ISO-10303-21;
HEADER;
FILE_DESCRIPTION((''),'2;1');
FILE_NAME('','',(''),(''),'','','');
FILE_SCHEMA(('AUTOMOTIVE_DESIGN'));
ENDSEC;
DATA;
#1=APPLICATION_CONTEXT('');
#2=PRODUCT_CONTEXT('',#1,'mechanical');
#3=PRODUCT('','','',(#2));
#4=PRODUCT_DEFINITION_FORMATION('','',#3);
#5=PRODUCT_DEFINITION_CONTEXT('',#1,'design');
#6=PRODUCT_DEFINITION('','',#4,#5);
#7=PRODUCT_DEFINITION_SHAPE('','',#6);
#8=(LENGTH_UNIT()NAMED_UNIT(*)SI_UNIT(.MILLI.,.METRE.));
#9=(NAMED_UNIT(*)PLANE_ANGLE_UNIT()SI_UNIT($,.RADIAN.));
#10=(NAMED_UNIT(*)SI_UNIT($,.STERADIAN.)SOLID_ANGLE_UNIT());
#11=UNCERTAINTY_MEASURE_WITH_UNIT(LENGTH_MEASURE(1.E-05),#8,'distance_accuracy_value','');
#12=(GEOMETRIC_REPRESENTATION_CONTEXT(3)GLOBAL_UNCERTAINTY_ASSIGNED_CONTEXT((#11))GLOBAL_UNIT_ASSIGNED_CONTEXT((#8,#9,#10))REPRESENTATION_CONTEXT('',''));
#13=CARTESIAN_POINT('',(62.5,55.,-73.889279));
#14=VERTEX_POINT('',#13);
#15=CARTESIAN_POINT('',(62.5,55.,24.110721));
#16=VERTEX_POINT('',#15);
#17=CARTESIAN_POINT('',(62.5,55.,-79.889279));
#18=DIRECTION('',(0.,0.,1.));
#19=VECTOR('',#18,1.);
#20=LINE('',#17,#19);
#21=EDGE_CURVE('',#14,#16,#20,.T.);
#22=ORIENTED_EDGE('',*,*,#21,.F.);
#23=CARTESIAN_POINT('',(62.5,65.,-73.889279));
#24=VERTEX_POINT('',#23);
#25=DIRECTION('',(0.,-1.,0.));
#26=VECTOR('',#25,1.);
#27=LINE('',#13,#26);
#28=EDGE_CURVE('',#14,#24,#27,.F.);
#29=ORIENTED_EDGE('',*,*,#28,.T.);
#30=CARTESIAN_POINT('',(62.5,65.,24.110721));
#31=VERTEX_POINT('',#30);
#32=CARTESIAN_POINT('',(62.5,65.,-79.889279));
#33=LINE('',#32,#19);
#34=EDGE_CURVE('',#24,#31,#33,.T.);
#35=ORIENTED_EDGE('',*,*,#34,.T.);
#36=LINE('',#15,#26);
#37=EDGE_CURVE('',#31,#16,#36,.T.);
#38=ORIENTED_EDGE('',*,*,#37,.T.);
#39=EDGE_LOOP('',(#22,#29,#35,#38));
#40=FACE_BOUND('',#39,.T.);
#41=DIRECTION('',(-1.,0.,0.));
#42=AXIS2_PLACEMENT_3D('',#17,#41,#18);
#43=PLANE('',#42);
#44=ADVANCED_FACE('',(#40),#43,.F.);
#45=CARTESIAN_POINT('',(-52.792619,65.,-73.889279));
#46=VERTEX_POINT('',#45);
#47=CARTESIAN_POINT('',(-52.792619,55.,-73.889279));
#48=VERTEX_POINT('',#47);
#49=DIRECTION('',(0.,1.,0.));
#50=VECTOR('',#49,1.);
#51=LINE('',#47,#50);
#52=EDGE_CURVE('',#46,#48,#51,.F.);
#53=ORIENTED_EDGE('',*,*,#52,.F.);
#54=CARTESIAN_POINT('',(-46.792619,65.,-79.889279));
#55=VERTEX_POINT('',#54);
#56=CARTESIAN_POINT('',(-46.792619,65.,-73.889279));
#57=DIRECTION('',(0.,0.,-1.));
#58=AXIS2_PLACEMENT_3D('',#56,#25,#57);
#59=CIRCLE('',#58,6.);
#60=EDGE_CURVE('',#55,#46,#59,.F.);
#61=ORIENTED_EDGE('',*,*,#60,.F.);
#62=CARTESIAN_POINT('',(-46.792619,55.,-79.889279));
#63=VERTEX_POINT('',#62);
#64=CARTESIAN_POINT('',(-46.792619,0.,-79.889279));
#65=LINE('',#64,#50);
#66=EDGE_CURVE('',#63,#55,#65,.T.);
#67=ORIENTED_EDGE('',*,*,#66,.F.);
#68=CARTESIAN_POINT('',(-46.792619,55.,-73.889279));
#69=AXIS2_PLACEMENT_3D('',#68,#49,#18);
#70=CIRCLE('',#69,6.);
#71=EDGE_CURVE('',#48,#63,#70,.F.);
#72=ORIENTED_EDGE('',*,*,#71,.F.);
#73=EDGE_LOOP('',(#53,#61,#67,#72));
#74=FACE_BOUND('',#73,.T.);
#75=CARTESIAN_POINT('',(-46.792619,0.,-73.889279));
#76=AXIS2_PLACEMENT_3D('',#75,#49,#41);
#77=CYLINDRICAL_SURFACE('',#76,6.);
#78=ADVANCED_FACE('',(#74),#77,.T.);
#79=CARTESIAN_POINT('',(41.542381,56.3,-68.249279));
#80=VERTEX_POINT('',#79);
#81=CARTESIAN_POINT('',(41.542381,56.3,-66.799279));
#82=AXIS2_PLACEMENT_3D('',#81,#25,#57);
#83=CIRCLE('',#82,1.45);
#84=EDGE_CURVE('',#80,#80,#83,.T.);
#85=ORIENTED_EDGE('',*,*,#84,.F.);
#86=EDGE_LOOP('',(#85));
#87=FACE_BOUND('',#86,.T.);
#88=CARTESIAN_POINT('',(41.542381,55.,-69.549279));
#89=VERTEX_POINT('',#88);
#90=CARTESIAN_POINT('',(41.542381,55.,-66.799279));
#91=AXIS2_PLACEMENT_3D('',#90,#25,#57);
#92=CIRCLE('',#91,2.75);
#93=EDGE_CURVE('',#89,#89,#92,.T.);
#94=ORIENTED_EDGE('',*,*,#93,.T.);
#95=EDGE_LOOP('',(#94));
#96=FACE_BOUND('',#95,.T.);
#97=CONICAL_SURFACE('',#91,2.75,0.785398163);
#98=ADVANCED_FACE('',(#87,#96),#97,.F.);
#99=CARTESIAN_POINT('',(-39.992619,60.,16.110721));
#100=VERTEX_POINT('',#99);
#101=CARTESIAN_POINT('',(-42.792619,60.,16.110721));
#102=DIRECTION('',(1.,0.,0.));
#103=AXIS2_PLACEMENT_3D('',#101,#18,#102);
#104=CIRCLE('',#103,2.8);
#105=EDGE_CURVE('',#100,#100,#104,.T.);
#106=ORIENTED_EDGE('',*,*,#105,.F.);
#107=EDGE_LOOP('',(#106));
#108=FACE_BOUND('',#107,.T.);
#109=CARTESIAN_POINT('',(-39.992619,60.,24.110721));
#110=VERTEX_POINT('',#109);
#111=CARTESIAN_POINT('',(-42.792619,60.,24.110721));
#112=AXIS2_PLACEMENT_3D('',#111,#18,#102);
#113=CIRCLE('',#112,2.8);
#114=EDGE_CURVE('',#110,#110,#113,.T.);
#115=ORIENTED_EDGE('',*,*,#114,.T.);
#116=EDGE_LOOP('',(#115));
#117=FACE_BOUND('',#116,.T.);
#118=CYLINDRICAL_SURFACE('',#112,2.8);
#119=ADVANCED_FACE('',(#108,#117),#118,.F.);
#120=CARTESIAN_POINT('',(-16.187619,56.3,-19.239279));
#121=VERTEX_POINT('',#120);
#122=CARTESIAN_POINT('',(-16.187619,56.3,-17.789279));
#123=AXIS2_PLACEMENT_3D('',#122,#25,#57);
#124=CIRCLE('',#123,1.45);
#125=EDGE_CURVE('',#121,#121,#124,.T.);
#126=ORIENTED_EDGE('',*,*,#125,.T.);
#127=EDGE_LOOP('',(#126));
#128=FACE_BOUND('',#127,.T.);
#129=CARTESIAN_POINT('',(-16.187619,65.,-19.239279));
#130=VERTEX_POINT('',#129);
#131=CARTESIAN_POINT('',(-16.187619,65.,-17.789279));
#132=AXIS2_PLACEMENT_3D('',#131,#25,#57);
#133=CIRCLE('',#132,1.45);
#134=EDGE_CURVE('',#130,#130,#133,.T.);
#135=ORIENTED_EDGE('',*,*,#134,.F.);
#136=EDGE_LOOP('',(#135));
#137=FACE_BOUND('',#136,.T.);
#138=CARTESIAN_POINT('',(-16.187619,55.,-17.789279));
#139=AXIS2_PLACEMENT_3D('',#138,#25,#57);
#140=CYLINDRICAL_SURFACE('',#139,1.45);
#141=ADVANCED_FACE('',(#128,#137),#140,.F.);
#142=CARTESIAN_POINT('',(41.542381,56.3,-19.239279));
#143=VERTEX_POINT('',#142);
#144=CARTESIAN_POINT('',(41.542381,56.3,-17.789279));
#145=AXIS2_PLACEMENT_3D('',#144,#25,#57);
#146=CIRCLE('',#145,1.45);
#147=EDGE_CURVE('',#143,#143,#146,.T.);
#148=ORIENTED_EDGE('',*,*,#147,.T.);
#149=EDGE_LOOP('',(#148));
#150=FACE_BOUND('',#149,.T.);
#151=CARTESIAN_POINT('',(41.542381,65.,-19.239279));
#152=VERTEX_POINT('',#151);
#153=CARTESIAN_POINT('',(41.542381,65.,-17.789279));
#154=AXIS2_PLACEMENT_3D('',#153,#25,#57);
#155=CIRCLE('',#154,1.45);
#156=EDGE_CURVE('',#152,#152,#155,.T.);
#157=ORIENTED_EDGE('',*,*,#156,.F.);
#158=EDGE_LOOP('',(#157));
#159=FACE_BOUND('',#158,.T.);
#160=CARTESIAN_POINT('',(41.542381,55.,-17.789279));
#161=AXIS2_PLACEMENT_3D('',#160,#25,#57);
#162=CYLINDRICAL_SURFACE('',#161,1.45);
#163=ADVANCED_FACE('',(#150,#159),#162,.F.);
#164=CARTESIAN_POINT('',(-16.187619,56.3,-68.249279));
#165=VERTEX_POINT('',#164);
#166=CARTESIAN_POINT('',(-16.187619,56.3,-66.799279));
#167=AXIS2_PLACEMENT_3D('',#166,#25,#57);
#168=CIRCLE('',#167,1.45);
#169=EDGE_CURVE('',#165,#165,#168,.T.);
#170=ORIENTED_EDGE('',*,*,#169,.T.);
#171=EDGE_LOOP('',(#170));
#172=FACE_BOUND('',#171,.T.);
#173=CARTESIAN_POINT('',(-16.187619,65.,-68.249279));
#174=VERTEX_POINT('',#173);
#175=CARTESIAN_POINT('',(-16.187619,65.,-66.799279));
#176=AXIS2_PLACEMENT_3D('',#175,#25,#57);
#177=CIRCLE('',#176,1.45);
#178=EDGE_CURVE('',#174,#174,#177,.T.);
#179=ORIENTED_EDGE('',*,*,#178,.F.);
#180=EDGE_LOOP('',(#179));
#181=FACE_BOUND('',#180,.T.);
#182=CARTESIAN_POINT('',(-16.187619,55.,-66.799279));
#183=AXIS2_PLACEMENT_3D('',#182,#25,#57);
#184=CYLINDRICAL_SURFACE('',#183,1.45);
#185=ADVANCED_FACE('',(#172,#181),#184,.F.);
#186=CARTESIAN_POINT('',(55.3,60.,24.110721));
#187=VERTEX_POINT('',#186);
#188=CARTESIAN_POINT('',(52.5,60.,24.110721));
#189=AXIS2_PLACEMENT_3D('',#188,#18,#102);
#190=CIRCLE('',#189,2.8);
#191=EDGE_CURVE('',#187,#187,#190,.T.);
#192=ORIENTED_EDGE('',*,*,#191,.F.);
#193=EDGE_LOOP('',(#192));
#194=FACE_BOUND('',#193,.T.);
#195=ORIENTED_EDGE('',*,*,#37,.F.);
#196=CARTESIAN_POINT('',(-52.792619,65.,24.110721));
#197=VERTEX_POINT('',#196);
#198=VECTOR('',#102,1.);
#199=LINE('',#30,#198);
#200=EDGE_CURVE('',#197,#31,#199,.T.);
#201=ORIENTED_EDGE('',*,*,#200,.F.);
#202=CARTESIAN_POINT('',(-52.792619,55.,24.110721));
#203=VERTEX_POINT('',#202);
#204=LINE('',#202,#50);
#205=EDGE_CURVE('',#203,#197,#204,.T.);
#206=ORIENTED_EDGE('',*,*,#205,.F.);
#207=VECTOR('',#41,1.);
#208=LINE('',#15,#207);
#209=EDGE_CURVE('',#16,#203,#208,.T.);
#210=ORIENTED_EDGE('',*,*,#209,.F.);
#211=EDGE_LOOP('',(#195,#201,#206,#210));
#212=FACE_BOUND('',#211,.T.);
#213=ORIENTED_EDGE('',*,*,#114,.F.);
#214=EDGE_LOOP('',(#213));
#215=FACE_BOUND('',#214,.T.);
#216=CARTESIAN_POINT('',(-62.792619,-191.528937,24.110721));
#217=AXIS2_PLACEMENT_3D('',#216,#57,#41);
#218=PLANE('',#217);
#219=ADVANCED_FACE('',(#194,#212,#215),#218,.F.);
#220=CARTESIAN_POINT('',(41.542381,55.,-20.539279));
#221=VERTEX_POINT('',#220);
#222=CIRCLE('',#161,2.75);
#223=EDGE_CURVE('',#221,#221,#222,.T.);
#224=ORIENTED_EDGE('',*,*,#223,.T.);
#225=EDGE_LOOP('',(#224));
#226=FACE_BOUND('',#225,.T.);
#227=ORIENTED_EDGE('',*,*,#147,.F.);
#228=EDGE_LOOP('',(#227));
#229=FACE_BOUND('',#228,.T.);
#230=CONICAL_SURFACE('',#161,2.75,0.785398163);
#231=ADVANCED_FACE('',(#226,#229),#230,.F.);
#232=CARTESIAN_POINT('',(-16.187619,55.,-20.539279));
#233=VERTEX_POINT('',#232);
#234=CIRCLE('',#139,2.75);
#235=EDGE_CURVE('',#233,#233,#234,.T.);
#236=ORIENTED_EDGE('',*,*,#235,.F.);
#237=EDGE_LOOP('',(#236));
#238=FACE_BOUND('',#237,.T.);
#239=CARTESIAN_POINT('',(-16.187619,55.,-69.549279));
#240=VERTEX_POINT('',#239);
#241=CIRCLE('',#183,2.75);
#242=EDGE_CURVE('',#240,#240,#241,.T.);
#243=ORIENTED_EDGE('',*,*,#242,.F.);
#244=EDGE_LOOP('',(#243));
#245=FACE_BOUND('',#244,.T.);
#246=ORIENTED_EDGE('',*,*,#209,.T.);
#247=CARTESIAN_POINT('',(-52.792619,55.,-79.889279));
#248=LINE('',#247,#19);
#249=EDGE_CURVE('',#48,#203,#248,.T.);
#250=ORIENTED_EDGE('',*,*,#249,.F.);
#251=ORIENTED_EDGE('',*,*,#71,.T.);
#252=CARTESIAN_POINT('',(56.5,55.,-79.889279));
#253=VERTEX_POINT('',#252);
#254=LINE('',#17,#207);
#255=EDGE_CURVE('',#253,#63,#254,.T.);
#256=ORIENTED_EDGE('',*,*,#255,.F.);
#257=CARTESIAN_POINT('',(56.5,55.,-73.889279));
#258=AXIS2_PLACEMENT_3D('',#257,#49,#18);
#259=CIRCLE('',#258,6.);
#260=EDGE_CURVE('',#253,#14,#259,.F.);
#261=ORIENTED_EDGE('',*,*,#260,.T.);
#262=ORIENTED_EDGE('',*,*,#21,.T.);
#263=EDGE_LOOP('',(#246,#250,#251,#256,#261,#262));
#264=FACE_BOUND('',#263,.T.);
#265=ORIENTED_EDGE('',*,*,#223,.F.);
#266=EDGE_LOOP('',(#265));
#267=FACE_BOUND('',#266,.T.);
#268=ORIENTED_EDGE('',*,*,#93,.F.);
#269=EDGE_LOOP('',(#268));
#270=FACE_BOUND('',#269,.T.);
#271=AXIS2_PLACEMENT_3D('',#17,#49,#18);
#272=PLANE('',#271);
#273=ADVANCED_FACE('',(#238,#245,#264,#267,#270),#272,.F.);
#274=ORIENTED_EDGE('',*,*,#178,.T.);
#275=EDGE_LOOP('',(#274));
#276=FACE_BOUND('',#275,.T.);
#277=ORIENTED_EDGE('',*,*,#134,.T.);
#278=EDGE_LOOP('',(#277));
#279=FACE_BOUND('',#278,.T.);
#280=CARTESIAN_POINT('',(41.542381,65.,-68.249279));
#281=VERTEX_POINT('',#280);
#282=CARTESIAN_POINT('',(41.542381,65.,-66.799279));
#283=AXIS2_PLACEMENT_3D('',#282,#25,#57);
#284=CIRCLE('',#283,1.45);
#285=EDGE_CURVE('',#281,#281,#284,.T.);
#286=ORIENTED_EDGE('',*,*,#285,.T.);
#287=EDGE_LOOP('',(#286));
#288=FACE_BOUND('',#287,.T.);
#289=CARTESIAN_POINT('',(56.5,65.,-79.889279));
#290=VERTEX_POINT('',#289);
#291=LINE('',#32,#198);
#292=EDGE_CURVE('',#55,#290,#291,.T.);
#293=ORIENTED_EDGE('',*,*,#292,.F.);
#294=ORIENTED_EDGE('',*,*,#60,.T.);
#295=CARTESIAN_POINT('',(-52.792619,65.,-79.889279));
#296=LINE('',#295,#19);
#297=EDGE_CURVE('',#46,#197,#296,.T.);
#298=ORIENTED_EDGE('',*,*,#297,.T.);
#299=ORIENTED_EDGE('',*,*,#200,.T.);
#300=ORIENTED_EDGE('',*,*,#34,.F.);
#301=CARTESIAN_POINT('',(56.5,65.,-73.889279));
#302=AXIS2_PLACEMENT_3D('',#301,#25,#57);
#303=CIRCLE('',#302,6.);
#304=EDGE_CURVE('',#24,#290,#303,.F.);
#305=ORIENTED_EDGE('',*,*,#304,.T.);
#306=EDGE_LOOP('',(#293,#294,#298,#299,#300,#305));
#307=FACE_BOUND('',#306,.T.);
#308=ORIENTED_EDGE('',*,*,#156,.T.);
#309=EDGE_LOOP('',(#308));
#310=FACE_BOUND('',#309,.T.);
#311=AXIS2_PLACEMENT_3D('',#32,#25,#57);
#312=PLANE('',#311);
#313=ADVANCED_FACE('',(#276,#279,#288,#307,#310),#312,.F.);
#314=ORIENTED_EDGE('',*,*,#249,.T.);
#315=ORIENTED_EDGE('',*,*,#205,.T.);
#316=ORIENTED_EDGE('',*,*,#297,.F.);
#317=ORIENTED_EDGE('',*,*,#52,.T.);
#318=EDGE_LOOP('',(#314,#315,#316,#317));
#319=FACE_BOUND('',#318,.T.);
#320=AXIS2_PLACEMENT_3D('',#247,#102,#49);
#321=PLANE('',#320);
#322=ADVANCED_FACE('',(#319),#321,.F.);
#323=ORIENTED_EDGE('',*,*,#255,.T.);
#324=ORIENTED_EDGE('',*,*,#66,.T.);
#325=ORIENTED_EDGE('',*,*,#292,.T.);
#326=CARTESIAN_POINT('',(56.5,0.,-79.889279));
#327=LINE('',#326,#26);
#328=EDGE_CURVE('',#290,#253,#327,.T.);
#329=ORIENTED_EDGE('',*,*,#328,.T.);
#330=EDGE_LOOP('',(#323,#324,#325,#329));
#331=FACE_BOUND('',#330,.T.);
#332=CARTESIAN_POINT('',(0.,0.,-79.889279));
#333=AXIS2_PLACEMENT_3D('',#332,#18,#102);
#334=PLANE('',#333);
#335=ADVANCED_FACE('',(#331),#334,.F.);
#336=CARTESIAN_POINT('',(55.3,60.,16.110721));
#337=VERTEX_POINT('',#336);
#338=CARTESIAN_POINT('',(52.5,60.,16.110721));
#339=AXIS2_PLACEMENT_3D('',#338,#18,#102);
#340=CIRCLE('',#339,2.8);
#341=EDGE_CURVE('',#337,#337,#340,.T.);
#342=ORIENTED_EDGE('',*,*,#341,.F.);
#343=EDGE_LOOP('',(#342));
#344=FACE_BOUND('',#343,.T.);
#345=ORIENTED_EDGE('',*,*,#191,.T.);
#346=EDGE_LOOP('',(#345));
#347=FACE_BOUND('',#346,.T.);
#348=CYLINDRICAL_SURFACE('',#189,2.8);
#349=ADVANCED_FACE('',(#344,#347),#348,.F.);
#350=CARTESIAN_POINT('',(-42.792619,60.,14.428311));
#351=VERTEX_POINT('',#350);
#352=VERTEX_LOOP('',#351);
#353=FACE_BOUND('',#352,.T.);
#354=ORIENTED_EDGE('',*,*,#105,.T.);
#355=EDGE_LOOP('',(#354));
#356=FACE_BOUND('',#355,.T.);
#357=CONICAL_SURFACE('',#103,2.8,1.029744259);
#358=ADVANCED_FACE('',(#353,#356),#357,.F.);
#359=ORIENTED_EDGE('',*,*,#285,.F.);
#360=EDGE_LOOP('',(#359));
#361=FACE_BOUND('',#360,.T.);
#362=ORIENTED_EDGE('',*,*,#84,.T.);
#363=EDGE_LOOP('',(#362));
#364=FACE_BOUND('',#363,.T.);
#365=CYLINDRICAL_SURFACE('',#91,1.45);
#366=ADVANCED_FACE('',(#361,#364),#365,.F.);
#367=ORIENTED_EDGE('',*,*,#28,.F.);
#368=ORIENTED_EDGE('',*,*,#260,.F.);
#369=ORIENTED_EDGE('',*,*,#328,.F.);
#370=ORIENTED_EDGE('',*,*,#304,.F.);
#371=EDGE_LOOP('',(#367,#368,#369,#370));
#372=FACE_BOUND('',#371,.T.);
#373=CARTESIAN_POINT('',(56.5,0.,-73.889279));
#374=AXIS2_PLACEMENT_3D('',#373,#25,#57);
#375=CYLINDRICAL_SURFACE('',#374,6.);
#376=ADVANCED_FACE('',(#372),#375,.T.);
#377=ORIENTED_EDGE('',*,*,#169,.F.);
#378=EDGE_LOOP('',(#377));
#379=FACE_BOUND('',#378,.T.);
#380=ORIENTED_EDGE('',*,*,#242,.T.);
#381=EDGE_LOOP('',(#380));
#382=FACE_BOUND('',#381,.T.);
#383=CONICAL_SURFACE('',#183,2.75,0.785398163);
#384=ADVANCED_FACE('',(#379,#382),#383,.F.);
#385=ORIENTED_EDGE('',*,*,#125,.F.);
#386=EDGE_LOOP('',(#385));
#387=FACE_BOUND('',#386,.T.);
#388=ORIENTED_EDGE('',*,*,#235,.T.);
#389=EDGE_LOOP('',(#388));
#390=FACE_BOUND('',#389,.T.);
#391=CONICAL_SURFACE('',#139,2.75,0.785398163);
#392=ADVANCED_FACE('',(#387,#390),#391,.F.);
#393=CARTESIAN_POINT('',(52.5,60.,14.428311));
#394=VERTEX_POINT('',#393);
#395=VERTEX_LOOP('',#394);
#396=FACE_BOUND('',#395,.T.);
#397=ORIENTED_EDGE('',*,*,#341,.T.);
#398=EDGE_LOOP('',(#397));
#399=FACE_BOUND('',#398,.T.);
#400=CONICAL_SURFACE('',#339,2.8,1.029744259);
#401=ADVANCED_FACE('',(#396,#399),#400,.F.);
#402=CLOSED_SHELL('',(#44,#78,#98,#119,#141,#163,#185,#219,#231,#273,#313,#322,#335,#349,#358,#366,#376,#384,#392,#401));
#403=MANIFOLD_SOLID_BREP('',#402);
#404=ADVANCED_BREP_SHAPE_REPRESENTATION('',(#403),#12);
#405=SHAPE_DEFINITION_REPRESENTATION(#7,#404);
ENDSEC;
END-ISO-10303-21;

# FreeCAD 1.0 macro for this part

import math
import FreeCAD as App
import Part
import Sketcher


def edges_at(feature, points):
    """Names of the edges that pass closest to the given points."""
    edges = feature.Shape.Edges
    near = lambda p: min(range(len(edges)), key=lambda i: edges[i].distToShape(Part.Vertex(*p))[0])
    return sorted({f"Edge{near(p) + 1}" for p in points})

doc = App.newDocument("Part")
body = doc.addObject("PartDesign::Body", "Body")

sketch1 = body.newObject("Sketcher::SketchObject", "Sketch")
sketch1.AttachmentSupport = (doc.getObject("XZ_Plane"), [""])
sketch1.MapMode = "FlatFace"
sketch1.addGeometry(Part.LineSegment(App.Vector(-53, -110, 0), App.Vector(-53, 24, 0)), False)
sketch1.addGeometry(Part.LineSegment(App.Vector(-53, 24, 0), App.Vector(63, 24, 0)), False)
sketch1.addGeometry(Part.LineSegment(App.Vector(63, 24, 0), App.Vector(63, -110, 0)), False)
sketch1.addGeometry(Part.LineSegment(App.Vector(63, -110, 0), App.Vector(-53, -110, 0)), False)
sketch1.addConstraint(Sketcher.Constraint("Coincident", 0, 2, 1, 1))
sketch1.addConstraint(Sketcher.Constraint("Coincident", 1, 2, 2, 1))
sketch1.addConstraint(Sketcher.Constraint("Coincident", 2, 2, 3, 1))
sketch1.addConstraint(Sketcher.Constraint("Coincident", 3, 2, 0, 1))
sketch1.addConstraint(Sketcher.Constraint("Vertical", 0))
sketch1.addConstraint(Sketcher.Constraint("Horizontal", 1))
sketch1.addConstraint(Sketcher.Constraint("Vertical", 2))
sketch1.addConstraint(Sketcher.Constraint("Horizontal", 3))
sketch1.addConstraint(Sketcher.Constraint("DistanceY", 0, 1, 0, 2, 134.0))
sketch1.addConstraint(Sketcher.Constraint("DistanceX", -1, 1, 1, 2, 62.5))
sketch1.addConstraint(Sketcher.Constraint("DistanceX", 1, 1, 1, 2, 115.292619))
sketch1.addConstraint(Sketcher.Constraint("DistanceY", -1, 1, 0, 2, 24.110721))
pad1 = body.newObject("PartDesign::Pad", "Pad")
pad1.Profile = sketch1
pad1.Length = 8
pad1.Reversed = True
doc.recompute()

fillet = body.newObject("PartDesign::Fillet", "Fillet")
fillet.Base = (pad1, edges_at(pad1, [(-52.793, 4, -109.889), (62.5, 4, -109.889)]))
fillet.Radius = 6

sketch2 = body.newObject("Sketcher::SketchObject", "Sketch001")
sketch2.AttachmentSupport = (doc.getObject("YZ_Plane"), [""])
sketch2.MapMode = "FlatFace"
sketch2.AttachmentOffset = App.Placement(App.Vector(0, 0, -52.792619), App.Rotation())
sketch2.addGeometry(Part.LineSegment(App.Vector(63, 24, 0), App.Vector(-36, 24, 0)), False)
sketch2.addGeometry(Part.LineSegment(App.Vector(-36, 24, 0), App.Vector(-36, 32, 0)), False)
sketch2.addGeometry(Part.LineSegment(App.Vector(-36, 32, 0), App.Vector(63, 32, 0)), False)
sketch2.addGeometry(Part.LineSegment(App.Vector(63, 32, 0), App.Vector(63, 24, 0)), False)
sketch2.addConstraint(Sketcher.Constraint("Coincident", 0, 2, 1, 1))
sketch2.addConstraint(Sketcher.Constraint("Coincident", 1, 2, 2, 1))
sketch2.addConstraint(Sketcher.Constraint("Coincident", 2, 2, 3, 1))
sketch2.addConstraint(Sketcher.Constraint("Coincident", 3, 2, 0, 1))
sketch2.addConstraint(Sketcher.Constraint("Horizontal", 0))
sketch2.addConstraint(Sketcher.Constraint("Vertical", 1))
sketch2.addConstraint(Sketcher.Constraint("Horizontal", 2))
sketch2.addConstraint(Sketcher.Constraint("Vertical", 3))
sketch2.addConstraint(Sketcher.Constraint("DistanceX", 0, 2, 0, 1, 99.0))
sketch2.addConstraint(Sketcher.Constraint("DistanceY", 1, 1, 1, 2, 8.0))
sketch2.addConstraint(Sketcher.Constraint("DistanceX", 0, 2, -1, 1, 36.0))
sketch2.addConstraint(Sketcher.Constraint("DistanceY", -1, 1, 0, 2, 24.110721))
pad2 = body.newObject("PartDesign::Pad", "Pad001")
pad2.Profile = sketch2
pad2.Length = 115.292619

sketch3 = body.newObject("Sketcher::SketchObject", "Sketch002")
sketch3.AttachmentSupport = (doc.getObject("XY_Plane"), [""])
sketch3.MapMode = "FlatFace"
sketch3.AttachmentOffset = App.Placement(App.Vector(0, 0, 32.110721), App.Rotation())
sketch3.addGeometry(Part.LineSegment(App.Vector(-63, 73, 0), App.Vector(-63, -56, 0)), False)
sketch3.addGeometry(Part.LineSegment(App.Vector(-63, -56, 0), App.Vector(72, -56, 0)), False)
sketch3.addGeometry(Part.LineSegment(App.Vector(72, -56, 0), App.Vector(72, 73, 0)), False)
sketch3.addGeometry(Part.LineSegment(App.Vector(72, 73, 0), App.Vector(-63, 73, 0)), False)
sketch3.addGeometry(Part.LineSegment(App.Vector(63, -36, 0), App.Vector(-53, -36, 0)), False)
sketch3.addGeometry(Part.LineSegment(App.Vector(-53, -36, 0), App.Vector(-53, 63, 0)), False)
sketch3.addGeometry(Part.LineSegment(App.Vector(-53, 63, 0), App.Vector(63, 63, 0)), False)
sketch3.addGeometry(Part.LineSegment(App.Vector(63, 63, 0), App.Vector(63, -36, 0)), False)
sketch3.addConstraint(Sketcher.Constraint("Coincident", 0, 2, 1, 1))
sketch3.addConstraint(Sketcher.Constraint("Coincident", 1, 2, 2, 1))
sketch3.addConstraint(Sketcher.Constraint("Coincident", 2, 2, 3, 1))
sketch3.addConstraint(Sketcher.Constraint("Coincident", 3, 2, 0, 1))
sketch3.addConstraint(Sketcher.Constraint("Coincident", 4, 2, 5, 1))
sketch3.addConstraint(Sketcher.Constraint("Coincident", 5, 2, 6, 1))
sketch3.addConstraint(Sketcher.Constraint("Coincident", 6, 2, 7, 1))
sketch3.addConstraint(Sketcher.Constraint("Coincident", 7, 2, 4, 1))
sketch3.addConstraint(Sketcher.Constraint("Vertical", 0))
sketch3.addConstraint(Sketcher.Constraint("Horizontal", 1))
sketch3.addConstraint(Sketcher.Constraint("Vertical", 2))
sketch3.addConstraint(Sketcher.Constraint("Horizontal", 3))
sketch3.addConstraint(Sketcher.Constraint("Horizontal", 4))
sketch3.addConstraint(Sketcher.Constraint("Vertical", 5))
sketch3.addConstraint(Sketcher.Constraint("Horizontal", 6))
sketch3.addConstraint(Sketcher.Constraint("Vertical", 7))
sketch3.addConstraint(Sketcher.Constraint("DistanceY", 0, 2, 0, 1, 129.0))
sketch3.addConstraint(Sketcher.Constraint("DistanceY", 5, 1, 5, 2, 99.0))
sketch3.addConstraint(Sketcher.Constraint("DistanceY", 0, 2, -1, 1, 56.0))
sketch3.addConstraint(Sketcher.Constraint("DistanceY", 4, 2, -1, 1, 36.0))
sketch3.addConstraint(Sketcher.Constraint("DistanceX", 0, 2, 4, 2, 10.0))
sketch3.addConstraint(Sketcher.Constraint("DistanceX", 6, 2, 2, 2, 10.0))
sketch3.addConstraint(Sketcher.Constraint("DistanceX", -1, 1, 1, 2, 72.5))
sketch3.addConstraint(Sketcher.Constraint("DistanceX", 1, 1, 1, 2, 135.292619))
pad3 = body.newObject("PartDesign::Pad", "Pad002")
pad3.Profile = sketch3
pad3.Length = 8
pad3.Reversed = True
doc.recompute()

fillet2 = body.newObject("PartDesign::Fillet", "Fillet001")
fillet2.Base = (pad3, edges_at(pad3, [
    (72.5, 73, 28.111),
    (72.5, -56, 28.111),
    (-62.793, -56, 28.111),
    (-62.793, 73, 28.111),
]))
fillet2.Radius = 5

sketch4 = body.newObject("Sketcher::SketchObject", "Sketch003")
sketch4.AttachmentSupport = (doc.getObject("XY_Plane"), [""])
sketch4.MapMode = "FlatFace"
sketch4.AttachmentOffset = App.Placement(App.Vector(0, 0, 24.110721), App.Rotation())
sketch4.addGeometry(Part.LineSegment(App.Vector(-62.8, -51, 0), App.Vector(-62.8, 68, 0)), False)
sketch4.addGeometry(Part.ArcOfCircle(Part.Circle(App.Vector(-57.8, 68, 0), App.Vector(0, 0, 1), 5), math.radians(90), math.radians(180)), False)
sketch4.addGeometry(Part.LineSegment(App.Vector(-57.8, 73, 0), App.Vector(67.5, 73, 0)), False)
sketch4.addGeometry(Part.ArcOfCircle(Part.Circle(App.Vector(67.5, 68, 0), App.Vector(0, 0, 1), 5), math.radians(0), math.radians(90)), False)
sketch4.addGeometry(Part.LineSegment(App.Vector(72.5, 68, 0), App.Vector(72.5, -51, 0)), False)
sketch4.addGeometry(Part.ArcOfCircle(Part.Circle(App.Vector(67.5, -51, 0), App.Vector(0, 0, 1), 5), math.radians(-90), math.radians(0)), False)
sketch4.addGeometry(Part.LineSegment(App.Vector(67.5, -56, 0), App.Vector(-57.8, -56, 0)), False)
sketch4.addGeometry(Part.ArcOfCircle(Part.Circle(App.Vector(-57.8, -51, 0), App.Vector(0, 0, 1), 5), math.radians(180), math.radians(270)), False)
sketch4.addGeometry(Part.LineSegment(App.Vector(67.5, 69.8, 0), App.Vector(-57.8, 69.8, 0)), False)
sketch4.addGeometry(Part.ArcOfCircle(Part.Circle(App.Vector(-57.8, 68, 0), App.Vector(0, 0, 1), 1.8), math.radians(90), math.radians(180)), False)
sketch4.addGeometry(Part.LineSegment(App.Vector(-59.5, 68, 0), App.Vector(-59.5, -51, 0)), False)
sketch4.addGeometry(Part.ArcOfCircle(Part.Circle(App.Vector(-57.8, -51, 0), App.Vector(0, 0, 1), 1.8), math.radians(180), math.radians(270)), False)
sketch4.addGeometry(Part.LineSegment(App.Vector(-57.8, -52.8, 0), App.Vector(67.5, -52.8, 0)), False)
sketch4.addGeometry(Part.ArcOfCircle(Part.Circle(App.Vector(67.5, -51, 0), App.Vector(0, 0, 1), 1.8), math.radians(-90), math.radians(0)), False)
sketch4.addGeometry(Part.LineSegment(App.Vector(69.2, -51, 0), App.Vector(69.2, 68, 0)), False)
sketch4.addGeometry(Part.ArcOfCircle(Part.Circle(App.Vector(67.5, 68, 0), App.Vector(0, 0, 1), 1.8), math.radians(0), math.radians(90)), False)
sketch4.addConstraint(Sketcher.Constraint("Tangent", 0, 2, 1, 2))
sketch4.addConstraint(Sketcher.Constraint("Tangent", 1, 1, 2, 1))
sketch4.addConstraint(Sketcher.Constraint("Tangent", 2, 2, 3, 2))
sketch4.addConstraint(Sketcher.Constraint("Tangent", 3, 1, 4, 1))
sketch4.addConstraint(Sketcher.Constraint("Tangent", 4, 2, 5, 2))
sketch4.addConstraint(Sketcher.Constraint("Tangent", 5, 1, 6, 1))
sketch4.addConstraint(Sketcher.Constraint("Tangent", 6, 2, 7, 2))
sketch4.addConstraint(Sketcher.Constraint("Tangent", 7, 1, 0, 1))
sketch4.addConstraint(Sketcher.Constraint("Tangent", 8, 2, 9, 1))
sketch4.addConstraint(Sketcher.Constraint("Tangent", 9, 2, 10, 1))
sketch4.addConstraint(Sketcher.Constraint("Tangent", 10, 2, 11, 1))
sketch4.addConstraint(Sketcher.Constraint("Tangent", 11, 2, 12, 1))
sketch4.addConstraint(Sketcher.Constraint("Tangent", 12, 2, 13, 1))
sketch4.addConstraint(Sketcher.Constraint("Tangent", 13, 2, 14, 1))
sketch4.addConstraint(Sketcher.Constraint("Tangent", 14, 2, 15, 1))
sketch4.addConstraint(Sketcher.Constraint("Tangent", 15, 2, 8, 1))
sketch4.addConstraint(Sketcher.Constraint("Vertical", 0))
sketch4.addConstraint(Sketcher.Constraint("Horizontal", 2))
sketch4.addConstraint(Sketcher.Constraint("Vertical", 4))
sketch4.addConstraint(Sketcher.Constraint("Horizontal", 6))
sketch4.addConstraint(Sketcher.Constraint("Horizontal", 8))
sketch4.addConstraint(Sketcher.Constraint("Vertical", 10))
sketch4.addConstraint(Sketcher.Constraint("Horizontal", 12))
sketch4.addConstraint(Sketcher.Constraint("Vertical", 14))
sketch4.addConstraint(Sketcher.Constraint("Coincident", 9, 3, 1, 3))
sketch4.addConstraint(Sketcher.Constraint("Coincident", 11, 3, 7, 3))
sketch4.addConstraint(Sketcher.Constraint("Coincident", 13, 3, 5, 3))
sketch4.addConstraint(Sketcher.Constraint("Equal", 1, 3))
sketch4.addConstraint(Sketcher.Constraint("Equal", 3, 5))
sketch4.addConstraint(Sketcher.Constraint("Equal", 5, 7))
sketch4.addConstraint(Sketcher.Constraint("Equal", 13, 15))
sketch4.addConstraint(Sketcher.Constraint("Radius", 1, 5.0))
sketch4.addConstraint(Sketcher.Constraint("DistanceY", 0, 1, 0, 2, 119.0))
sketch4.addConstraint(Sketcher.Constraint("Radius", 9, 1.75))
sketch4.addConstraint(Sketcher.Constraint("DistanceY", -1, 1, 1, 3, 68.0))
sketch4.addConstraint(Sketcher.Constraint("DistanceX", -1, 1, 3, 3, 67.5))
sketch4.addConstraint(Sketcher.Constraint("DistanceX", 2, 1, 2, 2, 125.292619))
pocket1 = body.newObject("PartDesign::Pocket", "Pocket")
pocket1.Profile = sketch4
pocket1.Length = 4
pocket1.Reversed = True

sketch5 = body.newObject("Sketcher::SketchObject", "Sketch004")
sketch5.AttachmentSupport = (doc.getObject("XY_Plane"), [""])
sketch5.MapMode = "FlatFace"
sketch5.AttachmentOffset = App.Placement(App.Vector(0, 0, 24.110721), App.Rotation())
sketch5.addGeometry(Part.LineSegment(App.Vector(63, 65, 0), App.Vector(63, 55, 0)), False)
sketch5.addGeometry(Part.LineSegment(App.Vector(63, 55, 0), App.Vector(-53, 55, 0)), False)
sketch5.addGeometry(Part.LineSegment(App.Vector(-53, 55, 0), App.Vector(-53, 65, 0)), False)
sketch5.addGeometry(Part.LineSegment(App.Vector(-53, 65, 0), App.Vector(63, 65, 0)), False)
sketch5.addConstraint(Sketcher.Constraint("Coincident", 0, 2, 1, 1))
sketch5.addConstraint(Sketcher.Constraint("Coincident", 1, 2, 2, 1))
sketch5.addConstraint(Sketcher.Constraint("Coincident", 2, 2, 3, 1))
sketch5.addConstraint(Sketcher.Constraint("Coincident", 3, 2, 0, 1))
sketch5.addConstraint(Sketcher.Constraint("Vertical", 0))
sketch5.addConstraint(Sketcher.Constraint("Horizontal", 1))
sketch5.addConstraint(Sketcher.Constraint("Vertical", 2))
sketch5.addConstraint(Sketcher.Constraint("Horizontal", 3))
sketch5.addConstraint(Sketcher.Constraint("DistanceY", 0, 2, 0, 1, 10.0))
sketch5.addConstraint(Sketcher.Constraint("DistanceY", -1, 1, 0, 2, 55.0))
sketch5.addConstraint(Sketcher.Constraint("DistanceX", -1, 1, 0, 2, 62.5))
sketch5.addConstraint(Sketcher.Constraint("DistanceX", 1, 2, 1, 1, 115.292619))
pad4 = body.newObject("PartDesign::Pad", "Pad003")
pad4.Profile = sketch5
pad4.Length = 104
pad4.Reversed = True
doc.recompute()

fillet3 = body.newObject("PartDesign::Fillet", "Fillet002")
fillet3.Base = (pad4, edges_at(pad4, [(62.5, 60, -79.889), (-52.793, 60, -79.889)]))
fillet3.Radius = 6

sketch6 = body.newObject("Sketcher::SketchObject", "Sketch005")
sketch6.AttachmentSupport = (doc.getObject("XZ_Plane"), [""])
sketch6.MapMode = "FlatFace"
sketch6.AttachmentOffset = App.Placement(App.Vector(0, 0, -55), App.Rotation())
sketch6.addGeometry(Part.Circle(App.Vector(-16.2, -66.8, 0), App.Vector(0, 0, 1), 1.4), False)
sketch6.addGeometry(Part.Circle(App.Vector(41.5, -66.8, 0), App.Vector(0, 0, 1), 1.4), False)
sketch6.addGeometry(Part.Circle(App.Vector(-16.2, -17.8, 0), App.Vector(0, 0, 1), 1.4), False)
sketch6.addGeometry(Part.Circle(App.Vector(41.5, -17.8, 0), App.Vector(0, 0, 1), 1.4), False)
sketch6.addConstraint(Sketcher.Constraint("Equal", 0, 1))
sketch6.addConstraint(Sketcher.Constraint("Equal", 1, 2))
sketch6.addConstraint(Sketcher.Constraint("Equal", 2, 3))
sketch6.addConstraint(Sketcher.Constraint("Horizontal", 0, 3, 1, 3))
sketch6.addConstraint(Sketcher.Constraint("Horizontal", 2, 3, 3, 3))
sketch6.addConstraint(Sketcher.Constraint("Vertical", 0, 3, 2, 3))
sketch6.addConstraint(Sketcher.Constraint("Vertical", 1, 3, 3, 3))
sketch6.addConstraint(Sketcher.Constraint("Diameter", 0, 2.9))
sketch6.addConstraint(Sketcher.Constraint("DistanceX", 0, 3, 1, 3, 57.73))
sketch6.addConstraint(Sketcher.Constraint("DistanceY", 0, 3, 2, 3, 49.01))
sketch6.addConstraint(Sketcher.Constraint("DistanceX", 0, 3, -1, 1, 16.187619))
sketch6.addConstraint(Sketcher.Constraint("DistanceY", 0, 3, -1, 1, 66.799279))
doc.recompute()
hole = body.newObject("PartDesign::Hole", "Hole")
hole.Profile = sketch6
hole.ThreadType = "None"
hole.Diameter = 2.9
hole.DepthType = "Dimension"
hole.Depth = 10
hole.DrillPoint = "Flat"
hole.HoleCutType = "Countersink"
hole.HoleCutDiameter = 5.5
hole.HoleCutCountersinkAngle = 90

sketch7 = body.newObject("Sketcher::SketchObject", "Sketch006")
sketch7.AttachmentSupport = (doc.getObject("XY_Plane"), [""])
sketch7.MapMode = "FlatFace"
sketch7.AttachmentOffset = App.Placement(App.Vector(0, 0, 32.110721), App.Rotation())
sketch7.addGeometry(Part.Circle(App.Vector(4.9, 40.2, 0), App.Vector(0, 0, 1), 4.4), False)
sketch7.addConstraint(Sketcher.Constraint("Diameter", 0, 8.86))
sketch7.addConstraint(Sketcher.Constraint("DistanceX", -1, 1, 0, 3, 4.853691))
sketch7.addConstraint(Sketcher.Constraint("DistanceY", -1, 1, 0, 3, 40.159632))
pocket2 = body.newObject("PartDesign::Pocket", "Pocket001")
pocket2.Profile = sketch7
pocket2.Length = 8

sketch8 = body.newObject("Sketcher::SketchObject", "Sketch007")
sketch8.AttachmentSupport = (doc.getObject("XZ_Plane"), [""])
sketch8.MapMode = "FlatFace"
sketch8.AttachmentOffset = App.Placement(App.Vector(0, 0, -8), App.Rotation())
sketch8.addGeometry(Part.Circle(App.Vector(-28.3, -101.6, 0), App.Vector(0, 0, 1), 1.4), False)
sketch8.addGeometry(Part.Circle(App.Vector(-7.3, -101.6, 0), App.Vector(0, 0, 1), 1.4), False)
sketch8.addGeometry(Part.Circle(App.Vector(-7.3, -88.1, 0), App.Vector(0, 0, 1), 1.4), False)
sketch8.addGeometry(Part.Circle(App.Vector(-28.3, -88.1, 0), App.Vector(0, 0, 1), 1.4), False)
sketch8.addConstraint(Sketcher.Constraint("Equal", 0, 1))
sketch8.addConstraint(Sketcher.Constraint("Equal", 1, 2))
sketch8.addConstraint(Sketcher.Constraint("Equal", 2, 3))
sketch8.addConstraint(Sketcher.Constraint("Horizontal", 0, 3, 1, 3))
sketch8.addConstraint(Sketcher.Constraint("Horizontal", 2, 3, 3, 3))
sketch8.addConstraint(Sketcher.Constraint("Vertical", 1, 3, 2, 3))
sketch8.addConstraint(Sketcher.Constraint("Vertical", 0, 3, 3, 3))
sketch8.addConstraint(Sketcher.Constraint("Diameter", 0, 2.9))
sketch8.addConstraint(Sketcher.Constraint("DistanceY", 1, 3, 2, 3, 13.5))
sketch8.addConstraint(Sketcher.Constraint("DistanceX", 0, 3, -1, 1, 28.27))
sketch8.addConstraint(Sketcher.Constraint("DistanceY", 0, 3, -1, 1, 101.64))
sketch8.addConstraint(Sketcher.Constraint("DistanceX", 1, 3, -1, 1, 7.29))
doc.recompute()
hole2 = body.newObject("PartDesign::Hole", "Hole001")
hole2.Profile = sketch8
hole2.ThreadType = "None"
hole2.Diameter = 2.9
hole2.DepthType = "ThroughAll"
hole2.Reversed = True

sketch9 = body.newObject("Sketcher::SketchObject", "Sketch008")
sketch9.AttachmentSupport = (doc.getObject("XZ_Plane"), [""])
sketch9.MapMode = "FlatFace"
sketch9.addGeometry(Part.LineSegment(App.Vector(-26.3, -103.1, 0), App.Vector(-30.3, -103.1, 0)), False)
sketch9.addGeometry(Part.ArcOfCircle(Part.Circle(App.Vector(-30.3, -101.6, 0), App.Vector(0, 0, 1), 1.4), math.radians(90), math.radians(270)), False)
sketch9.addGeometry(Part.LineSegment(App.Vector(-30.3, -100.2, 0), App.Vector(-26.3, -100.2, 0)), False)
sketch9.addGeometry(Part.ArcOfCircle(Part.Circle(App.Vector(-26.3, -101.6, 0), App.Vector(0, 0, 1), 1.4), math.radians(-90), math.radians(90)), False)
sketch9.addGeometry(Part.LineSegment(App.Vector(-5.3, -103.1, 0), App.Vector(-9.3, -103.1, 0)), False)
sketch9.addGeometry(Part.ArcOfCircle(Part.Circle(App.Vector(-9.3, -101.6, 0), App.Vector(0, 0, 1), 1.4), math.radians(90), math.radians(270)), False)
sketch9.addGeometry(Part.LineSegment(App.Vector(-9.3, -100.2, 0), App.Vector(-5.3, -100.2, 0)), False)
sketch9.addGeometry(Part.ArcOfCircle(Part.Circle(App.Vector(-5.3, -101.6, 0), App.Vector(0, 0, 1), 1.4), math.radians(-90), math.radians(90)), False)
sketch9.addGeometry(Part.LineSegment(App.Vector(-26.3, -89.6, 0), App.Vector(-30.3, -89.6, 0)), False)
sketch9.addGeometry(Part.ArcOfCircle(Part.Circle(App.Vector(-30.3, -88.1, 0), App.Vector(0, 0, 1), 1.4), math.radians(90), math.radians(270)), False)
sketch9.addGeometry(Part.LineSegment(App.Vector(-30.3, -86.7, 0), App.Vector(-26.3, -86.7, 0)), False)
sketch9.addGeometry(Part.ArcOfCircle(Part.Circle(App.Vector(-26.3, -88.1, 0), App.Vector(0, 0, 1), 1.4), math.radians(-90), math.radians(90)), False)
sketch9.addGeometry(Part.LineSegment(App.Vector(-5.3, -89.6, 0), App.Vector(-9.3, -89.6, 0)), False)
sketch9.addGeometry(Part.ArcOfCircle(Part.Circle(App.Vector(-9.3, -88.1, 0), App.Vector(0, 0, 1), 1.4), math.radians(90), math.radians(270)), False)
sketch9.addGeometry(Part.LineSegment(App.Vector(-9.3, -86.7, 0), App.Vector(-5.3, -86.7, 0)), False)
sketch9.addGeometry(Part.ArcOfCircle(Part.Circle(App.Vector(-5.3, -88.1, 0), App.Vector(0, 0, 1), 1.4), math.radians(-90), math.radians(90)), False)
sketch9.addConstraint(Sketcher.Constraint("Tangent", 0, 2, 1, 2))
sketch9.addConstraint(Sketcher.Constraint("Tangent", 1, 1, 2, 1))
sketch9.addConstraint(Sketcher.Constraint("Tangent", 2, 2, 3, 2))
sketch9.addConstraint(Sketcher.Constraint("Tangent", 3, 1, 0, 1))
sketch9.addConstraint(Sketcher.Constraint("Tangent", 4, 2, 5, 2))
sketch9.addConstraint(Sketcher.Constraint("Tangent", 5, 1, 6, 1))
sketch9.addConstraint(Sketcher.Constraint("Tangent", 6, 2, 7, 2))
sketch9.addConstraint(Sketcher.Constraint("Tangent", 7, 1, 4, 1))
sketch9.addConstraint(Sketcher.Constraint("Tangent", 8, 2, 9, 2))
sketch9.addConstraint(Sketcher.Constraint("Tangent", 9, 1, 10, 1))
sketch9.addConstraint(Sketcher.Constraint("Tangent", 10, 2, 11, 2))
sketch9.addConstraint(Sketcher.Constraint("Tangent", 11, 1, 8, 1))
sketch9.addConstraint(Sketcher.Constraint("Tangent", 12, 2, 13, 2))
sketch9.addConstraint(Sketcher.Constraint("Tangent", 13, 1, 14, 1))
sketch9.addConstraint(Sketcher.Constraint("Tangent", 14, 2, 15, 2))
sketch9.addConstraint(Sketcher.Constraint("Tangent", 15, 1, 12, 1))
sketch9.addConstraint(Sketcher.Constraint("Horizontal", 0))
sketch9.addConstraint(Sketcher.Constraint("Horizontal", 2))
sketch9.addConstraint(Sketcher.Constraint("Horizontal", 4))
sketch9.addConstraint(Sketcher.Constraint("Horizontal", 6))
sketch9.addConstraint(Sketcher.Constraint("Horizontal", 8))
sketch9.addConstraint(Sketcher.Constraint("Horizontal", 10))
sketch9.addConstraint(Sketcher.Constraint("Horizontal", 12))
sketch9.addConstraint(Sketcher.Constraint("Horizontal", 14))
sketch9.addConstraint(Sketcher.Constraint("Equal", 3, 5))
sketch9.addConstraint(Sketcher.Constraint("Equal", 7, 9))
sketch9.addConstraint(Sketcher.Constraint("Equal", 11, 13))
sketch9.addConstraint(Sketcher.Constraint("Horizontal", 3, 3, 5, 3))
sketch9.addConstraint(Sketcher.Constraint("Horizontal", 11, 3, 13, 3))
sketch9.addConstraint(Sketcher.Constraint("Vertical", 1, 3, 9, 3))
sketch9.addConstraint(Sketcher.Constraint("Vertical", 3, 3, 11, 3))
sketch9.addConstraint(Sketcher.Constraint("Vertical", 5, 3, 13, 3))
sketch9.addConstraint(Sketcher.Constraint("Vertical", 7, 3, 15, 3))
sketch9.addConstraint(Sketcher.Constraint("Equal", 2, 4))
sketch9.addConstraint(Sketcher.Constraint("DistanceX", 0, 2, 0, 1, 4.0))
sketch9.addConstraint(Sketcher.Constraint("Radius", 1, 1.45))
sketch9.addConstraint(Sketcher.Constraint("DistanceY", 1, 3, 9, 3, 13.5))
sketch9.addConstraint(Sketcher.Constraint("DistanceX", 1, 3, -1, 1, 30.27))
sketch9.addConstraint(Sketcher.Constraint("DistanceY", 1, 3, -1, 1, 101.64))
sketch9.addConstraint(Sketcher.Constraint("DistanceX", 5, 3, -1, 1, 9.29))
pocket3 = body.newObject("PartDesign::Pocket", "Pocket002")
pocket3.Profile = sketch9
pocket3.Length = 8
doc.recompute()

chamfer = body.newObject("PartDesign::Chamfer", "Chamfer")
chamfer.Base = (pocket3, edges_at(pocket3, [
    (-7.29, 8, -100.19),
    (-3.84, 8, -101.64),
    (-7.29, 8, -103.09),
    (-28.27, 8, -86.69),
    (-24.82, 8, -88.14),
    (-28.27, 8, -89.59),
    (-7.29, 8, -86.69),
    (-3.84, 8, -88.14),
    (-7.29, 8, -89.59),
    (-28.27, 8, -103.09),
    (-31.72, 8, -101.64),
    (-28.27, 8, -100.19),
    (-24.82, 8, -101.64),
    (-10.74, 8, -88.14),
    (-31.72, 8, -88.14),
    (-10.74, 8, -101.64),
]))
chamfer.Size = 0.9

sketch10 = body.newObject("Sketcher::SketchObject", "Sketch009")
sketch10.AttachmentSupport = (doc.getObject("YZ_Plane"), [""])
sketch10.MapMode = "FlatFace"
sketch10.AttachmentOffset = App.Placement(App.Vector(0, 0, -52.792619), App.Rotation())
sketch10.addGeometry(Part.LineSegment(App.Vector(8, -110, 0), App.Vector(0, -110, 0)), False)
sketch10.addGeometry(Part.LineSegment(App.Vector(0, -110, 0), App.Vector(0, 24, 0)), False)
sketch10.addGeometry(Part.LineSegment(App.Vector(0, 24, 0), App.Vector(8, 24, 0)), False)
sketch10.addGeometry(Part.LineSegment(App.Vector(8, 24, 0), App.Vector(8, -110, 0)), False)
sketch10.addConstraint(Sketcher.Constraint("Coincident", 0, 2, 1, 1))
sketch10.addConstraint(Sketcher.Constraint("Coincident", 1, 2, 2, 1))
sketch10.addConstraint(Sketcher.Constraint("Coincident", 2, 2, 3, 1))
sketch10.addConstraint(Sketcher.Constraint("Coincident", 3, 2, 0, 1))
sketch10.addConstraint(Sketcher.Constraint("Horizontal", 0))
sketch10.addConstraint(Sketcher.Constraint("Vertical", 1))
sketch10.addConstraint(Sketcher.Constraint("Horizontal", 2))
sketch10.addConstraint(Sketcher.Constraint("Vertical", 3))
sketch10.addConstraint(Sketcher.Constraint("PointOnObject", 0, 2, -2))
sketch10.addConstraint(Sketcher.Constraint("DistanceX", 0, 2, 0, 1, 8.0))
sketch10.addConstraint(Sketcher.Constraint("DistanceY", 1, 1, 1, 2, 134.0))
sketch10.addConstraint(Sketcher.Constraint("DistanceY", 0, 2, -1, 1, 109.889279))
pocket4 = body.newObject("PartDesign::Pocket", "Pocket003")
pocket4.Profile = sketch10
pocket4.Length = 115.292619
pocket4.Reversed = True

sketch11 = body.newObject("Sketcher::SketchObject", "Sketch010")
sketch11.AttachmentSupport = (doc.getObject("XZ_Plane"), [""])
sketch11.MapMode = "FlatFace"
sketch11.AttachmentOffset = App.Placement(App.Vector(0, 0, -73), App.Rotation())
sketch11.addGeometry(Part.LineSegment(App.Vector(-63, 24, 0), App.Vector(-63, 32, 0)), False)
sketch11.addGeometry(Part.LineSegment(App.Vector(-63, 32, 0), App.Vector(72, 32, 0)), False)
sketch11.addGeometry(Part.LineSegment(App.Vector(72, 32, 0), App.Vector(72, 24, 0)), False)
sketch11.addGeometry(Part.LineSegment(App.Vector(72, 24, 0), App.Vector(-63, 24, 0)), False)
sketch11.addConstraint(Sketcher.Constraint("Coincident", 0, 2, 1, 1))
sketch11.addConstraint(Sketcher.Constraint("Coincident", 1, 2, 2, 1))
sketch11.addConstraint(Sketcher.Constraint("Coincident", 2, 2, 3, 1))
sketch11.addConstraint(Sketcher.Constraint("Coincident", 3, 2, 0, 1))
sketch11.addConstraint(Sketcher.Constraint("Vertical", 0))
sketch11.addConstraint(Sketcher.Constraint("Horizontal", 1))
sketch11.addConstraint(Sketcher.Constraint("Vertical", 2))
sketch11.addConstraint(Sketcher.Constraint("Horizontal", 3))
sketch11.addConstraint(Sketcher.Constraint("DistanceY", 0, 1, 0, 2, 8.0))
sketch11.addConstraint(Sketcher.Constraint("DistanceX", -1, 1, 1, 2, 72.5))
sketch11.addConstraint(Sketcher.Constraint("DistanceX", 1, 1, 1, 2, 135.292619))
sketch11.addConstraint(Sketcher.Constraint("DistanceY", -1, 1, 0, 2, 32.110721))
pocket5 = body.newObject("PartDesign::Pocket", "Pocket004")
pocket5.Profile = sketch11
pocket5.Length = 129
pocket5.Reversed = True

sketch12 = body.newObject("Sketcher::SketchObject", "Sketch011")
sketch12.AttachmentSupport = (doc.getObject("XY_Plane"), [""])
sketch12.MapMode = "FlatFace"
sketch12.AttachmentOffset = App.Placement(App.Vector(0, 0, 24.110721), App.Rotation())
sketch12.addGeometry(Part.Circle(App.Vector(-42.8, 60, 0), App.Vector(0, 0, 1), 2.8), False)
sketch12.addGeometry(Part.Circle(App.Vector(52.5, 60, 0), App.Vector(0, 0, 1), 2.8), False)
sketch12.addConstraint(Sketcher.Constraint("Equal", 0, 1))
sketch12.addConstraint(Sketcher.Constraint("Horizontal", 0, 3, 1, 3))
sketch12.addConstraint(Sketcher.Constraint("Diameter", 0, 5.6))
sketch12.addConstraint(Sketcher.Constraint("DistanceY", -1, 1, 0, 3, 60.0))
sketch12.addConstraint(Sketcher.Constraint("DistanceX", -1, 1, 1, 3, 52.5))
sketch12.addConstraint(Sketcher.Constraint("DistanceX", 0, 3, -1, 1, 42.792619))
doc.recompute()
hole3 = body.newObject("PartDesign::Hole", "Hole002")
hole3.Profile = sketch12
hole3.ThreadType = "None"
hole3.Diameter = 5.6
hole3.DepthType = "Dimension"
hole3.Depth = 8
hole3.DrillPoint = "Angled"
hole3.DrillPointAngle = 118

doc.recompute()
